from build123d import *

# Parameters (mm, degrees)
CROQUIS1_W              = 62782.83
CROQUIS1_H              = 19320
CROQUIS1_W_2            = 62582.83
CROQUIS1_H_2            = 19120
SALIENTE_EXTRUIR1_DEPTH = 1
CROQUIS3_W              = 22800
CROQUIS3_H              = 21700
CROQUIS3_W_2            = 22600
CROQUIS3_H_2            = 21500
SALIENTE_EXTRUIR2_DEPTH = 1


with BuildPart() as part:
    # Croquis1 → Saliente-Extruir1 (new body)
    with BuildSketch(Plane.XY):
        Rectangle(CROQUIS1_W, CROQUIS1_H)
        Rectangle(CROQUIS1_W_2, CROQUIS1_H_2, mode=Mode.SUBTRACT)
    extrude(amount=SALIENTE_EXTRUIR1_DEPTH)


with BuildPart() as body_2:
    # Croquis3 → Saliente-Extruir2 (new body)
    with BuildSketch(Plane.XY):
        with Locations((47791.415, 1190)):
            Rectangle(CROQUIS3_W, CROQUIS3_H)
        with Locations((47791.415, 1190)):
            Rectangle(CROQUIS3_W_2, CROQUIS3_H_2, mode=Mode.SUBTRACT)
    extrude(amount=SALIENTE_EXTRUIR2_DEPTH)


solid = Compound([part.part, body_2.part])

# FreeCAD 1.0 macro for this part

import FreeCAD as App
import Part
import Sketcher
from FreeCAD import Vector
Q = App.Units.Quantity


def add_polygon(sketch, points):
    """Adds a closed chain of lines whose ends are joined by coincident constraints."""
    first, n = sketch.GeometryCount, len(points)
    for a, b in zip(points, points[1:] + points[:1]):
        sketch.addGeometry(Part.LineSegment(App.Vector(*a, 0), App.Vector(*b, 0)), False)
    for i in range(n):
        sketch.addConstraint(Sketcher.Constraint("Coincident", first + i, 2, first + (i + 1) % n, 1))

doc = App.newDocument("Part")
body = doc.addObject("PartDesign::Body", "Body")

# Sketch on XY plane
sketch1 = body.newObject("Sketcher::SketchObject", "Sketch")
sketch1.AttachmentSupport = (doc.getObject("XY_Plane"), [""])
sketch1.MapMode = "FlatFace"
add_polygon(sketch1, [(-31391.415, 9660), (-31391.415, -9660), (31391.415, -9660), (31391.415, 9660)])  # lines 0-3
add_polygon(sketch1, [(31291.415, -9560), (-31291.415, -9560), (-31291.415, 9560), (31291.415, 9560)])  # lines 4-7
sketch1.addConstraint([
    Sketcher.Constraint("Vertical", 0),
    Sketcher.Constraint("Horizontal", 1),
    Sketcher.Constraint("Vertical", 2),
    Sketcher.Constraint("Horizontal", 3),
    Sketcher.Constraint("Horizontal", 4),
    Sketcher.Constraint("Vertical", 5),
    Sketcher.Constraint("Horizontal", 6),
    Sketcher.Constraint("Vertical", 7),
    Sketcher.Constraint("Symmetric", 0, 2, 2, 2, -1, 1),
    Sketcher.Constraint("Symmetric", 4, 2, 6, 2, -1, 1),
    Sketcher.Constraint("DistanceY", 0, 2, 0, 1, Q("19320 mm")),
    Sketcher.Constraint("DistanceY", 5, 1, 5, 2, Q("19120 mm")),
    Sketcher.Constraint("DistanceX", 0, 2, 4, 2, Q("100 mm")),
    Sketcher.Constraint("DistanceX", 1, 1, 1, 2, Q("62782.83 mm")),
])
pad1 = body.newObject("PartDesign::Pad", "Pad")
pad1.Profile = sketch1
pad1.Length = 1
body2 = doc.addObject("PartDesign::Body", "Body001")

# Sketch on XY plane
sketch2 = body2.newObject("Sketcher::SketchObject", "Sketch001")
sketch2.AttachmentSupport = (doc.getObject("XY_Plane001"), [""])
sketch2.MapMode = "FlatFace"
add_polygon(sketch2, [(36391.415, 12040), (36391.415, -9660), (59191.415, -9660), (59191.415, 12040)])  # lines 0-3
add_polygon(sketch2, [(59091.415, -9560), (36491.415, -9560), (36491.415, 11940), (59091.415, 11940)])  # lines 4-7
sketch2.addConstraint([
    Sketcher.Constraint("Vertical", 0),
    Sketcher.Constraint("Horizontal", 1),
    Sketcher.Constraint("Vertical", 2),
    Sketcher.Constraint("Horizontal", 3),
    Sketcher.Constraint("Horizontal", 4),
    Sketcher.Constraint("Vertical", 5),
    Sketcher.Constraint("Horizontal", 6),
    Sketcher.Constraint("Vertical", 7),
    Sketcher.Constraint("DistanceX", 1, 1, 1, 2, Q("22800 mm")),
    Sketcher.Constraint("DistanceX", 4, 2, 4, 1, Q("22600 mm")),
    Sketcher.Constraint("DistanceY", 0, 2, 0, 1, Q("21700 mm")),
    Sketcher.Constraint("DistanceY", 5, 1, 5, 2, Q("21500 mm")),
    Sketcher.Constraint("DistanceY", 0, 2, -1, 1, Q("9660 mm")),
    Sketcher.Constraint("DistanceY", 4, 2, -1, 1, Q("9560 mm")),
    Sketcher.Constraint("DistanceX", 0, 2, 4, 2, Q("100 mm")),
    Sketcher.Constraint("DistanceX", -1, 1, 0, 2, Q("36391.415 mm")),
])
pad2 = body2.newObject("PartDesign::Pad", "Pad001")
pad2.Profile = sketch2
pad2.Length = 1

doc.recompute()
